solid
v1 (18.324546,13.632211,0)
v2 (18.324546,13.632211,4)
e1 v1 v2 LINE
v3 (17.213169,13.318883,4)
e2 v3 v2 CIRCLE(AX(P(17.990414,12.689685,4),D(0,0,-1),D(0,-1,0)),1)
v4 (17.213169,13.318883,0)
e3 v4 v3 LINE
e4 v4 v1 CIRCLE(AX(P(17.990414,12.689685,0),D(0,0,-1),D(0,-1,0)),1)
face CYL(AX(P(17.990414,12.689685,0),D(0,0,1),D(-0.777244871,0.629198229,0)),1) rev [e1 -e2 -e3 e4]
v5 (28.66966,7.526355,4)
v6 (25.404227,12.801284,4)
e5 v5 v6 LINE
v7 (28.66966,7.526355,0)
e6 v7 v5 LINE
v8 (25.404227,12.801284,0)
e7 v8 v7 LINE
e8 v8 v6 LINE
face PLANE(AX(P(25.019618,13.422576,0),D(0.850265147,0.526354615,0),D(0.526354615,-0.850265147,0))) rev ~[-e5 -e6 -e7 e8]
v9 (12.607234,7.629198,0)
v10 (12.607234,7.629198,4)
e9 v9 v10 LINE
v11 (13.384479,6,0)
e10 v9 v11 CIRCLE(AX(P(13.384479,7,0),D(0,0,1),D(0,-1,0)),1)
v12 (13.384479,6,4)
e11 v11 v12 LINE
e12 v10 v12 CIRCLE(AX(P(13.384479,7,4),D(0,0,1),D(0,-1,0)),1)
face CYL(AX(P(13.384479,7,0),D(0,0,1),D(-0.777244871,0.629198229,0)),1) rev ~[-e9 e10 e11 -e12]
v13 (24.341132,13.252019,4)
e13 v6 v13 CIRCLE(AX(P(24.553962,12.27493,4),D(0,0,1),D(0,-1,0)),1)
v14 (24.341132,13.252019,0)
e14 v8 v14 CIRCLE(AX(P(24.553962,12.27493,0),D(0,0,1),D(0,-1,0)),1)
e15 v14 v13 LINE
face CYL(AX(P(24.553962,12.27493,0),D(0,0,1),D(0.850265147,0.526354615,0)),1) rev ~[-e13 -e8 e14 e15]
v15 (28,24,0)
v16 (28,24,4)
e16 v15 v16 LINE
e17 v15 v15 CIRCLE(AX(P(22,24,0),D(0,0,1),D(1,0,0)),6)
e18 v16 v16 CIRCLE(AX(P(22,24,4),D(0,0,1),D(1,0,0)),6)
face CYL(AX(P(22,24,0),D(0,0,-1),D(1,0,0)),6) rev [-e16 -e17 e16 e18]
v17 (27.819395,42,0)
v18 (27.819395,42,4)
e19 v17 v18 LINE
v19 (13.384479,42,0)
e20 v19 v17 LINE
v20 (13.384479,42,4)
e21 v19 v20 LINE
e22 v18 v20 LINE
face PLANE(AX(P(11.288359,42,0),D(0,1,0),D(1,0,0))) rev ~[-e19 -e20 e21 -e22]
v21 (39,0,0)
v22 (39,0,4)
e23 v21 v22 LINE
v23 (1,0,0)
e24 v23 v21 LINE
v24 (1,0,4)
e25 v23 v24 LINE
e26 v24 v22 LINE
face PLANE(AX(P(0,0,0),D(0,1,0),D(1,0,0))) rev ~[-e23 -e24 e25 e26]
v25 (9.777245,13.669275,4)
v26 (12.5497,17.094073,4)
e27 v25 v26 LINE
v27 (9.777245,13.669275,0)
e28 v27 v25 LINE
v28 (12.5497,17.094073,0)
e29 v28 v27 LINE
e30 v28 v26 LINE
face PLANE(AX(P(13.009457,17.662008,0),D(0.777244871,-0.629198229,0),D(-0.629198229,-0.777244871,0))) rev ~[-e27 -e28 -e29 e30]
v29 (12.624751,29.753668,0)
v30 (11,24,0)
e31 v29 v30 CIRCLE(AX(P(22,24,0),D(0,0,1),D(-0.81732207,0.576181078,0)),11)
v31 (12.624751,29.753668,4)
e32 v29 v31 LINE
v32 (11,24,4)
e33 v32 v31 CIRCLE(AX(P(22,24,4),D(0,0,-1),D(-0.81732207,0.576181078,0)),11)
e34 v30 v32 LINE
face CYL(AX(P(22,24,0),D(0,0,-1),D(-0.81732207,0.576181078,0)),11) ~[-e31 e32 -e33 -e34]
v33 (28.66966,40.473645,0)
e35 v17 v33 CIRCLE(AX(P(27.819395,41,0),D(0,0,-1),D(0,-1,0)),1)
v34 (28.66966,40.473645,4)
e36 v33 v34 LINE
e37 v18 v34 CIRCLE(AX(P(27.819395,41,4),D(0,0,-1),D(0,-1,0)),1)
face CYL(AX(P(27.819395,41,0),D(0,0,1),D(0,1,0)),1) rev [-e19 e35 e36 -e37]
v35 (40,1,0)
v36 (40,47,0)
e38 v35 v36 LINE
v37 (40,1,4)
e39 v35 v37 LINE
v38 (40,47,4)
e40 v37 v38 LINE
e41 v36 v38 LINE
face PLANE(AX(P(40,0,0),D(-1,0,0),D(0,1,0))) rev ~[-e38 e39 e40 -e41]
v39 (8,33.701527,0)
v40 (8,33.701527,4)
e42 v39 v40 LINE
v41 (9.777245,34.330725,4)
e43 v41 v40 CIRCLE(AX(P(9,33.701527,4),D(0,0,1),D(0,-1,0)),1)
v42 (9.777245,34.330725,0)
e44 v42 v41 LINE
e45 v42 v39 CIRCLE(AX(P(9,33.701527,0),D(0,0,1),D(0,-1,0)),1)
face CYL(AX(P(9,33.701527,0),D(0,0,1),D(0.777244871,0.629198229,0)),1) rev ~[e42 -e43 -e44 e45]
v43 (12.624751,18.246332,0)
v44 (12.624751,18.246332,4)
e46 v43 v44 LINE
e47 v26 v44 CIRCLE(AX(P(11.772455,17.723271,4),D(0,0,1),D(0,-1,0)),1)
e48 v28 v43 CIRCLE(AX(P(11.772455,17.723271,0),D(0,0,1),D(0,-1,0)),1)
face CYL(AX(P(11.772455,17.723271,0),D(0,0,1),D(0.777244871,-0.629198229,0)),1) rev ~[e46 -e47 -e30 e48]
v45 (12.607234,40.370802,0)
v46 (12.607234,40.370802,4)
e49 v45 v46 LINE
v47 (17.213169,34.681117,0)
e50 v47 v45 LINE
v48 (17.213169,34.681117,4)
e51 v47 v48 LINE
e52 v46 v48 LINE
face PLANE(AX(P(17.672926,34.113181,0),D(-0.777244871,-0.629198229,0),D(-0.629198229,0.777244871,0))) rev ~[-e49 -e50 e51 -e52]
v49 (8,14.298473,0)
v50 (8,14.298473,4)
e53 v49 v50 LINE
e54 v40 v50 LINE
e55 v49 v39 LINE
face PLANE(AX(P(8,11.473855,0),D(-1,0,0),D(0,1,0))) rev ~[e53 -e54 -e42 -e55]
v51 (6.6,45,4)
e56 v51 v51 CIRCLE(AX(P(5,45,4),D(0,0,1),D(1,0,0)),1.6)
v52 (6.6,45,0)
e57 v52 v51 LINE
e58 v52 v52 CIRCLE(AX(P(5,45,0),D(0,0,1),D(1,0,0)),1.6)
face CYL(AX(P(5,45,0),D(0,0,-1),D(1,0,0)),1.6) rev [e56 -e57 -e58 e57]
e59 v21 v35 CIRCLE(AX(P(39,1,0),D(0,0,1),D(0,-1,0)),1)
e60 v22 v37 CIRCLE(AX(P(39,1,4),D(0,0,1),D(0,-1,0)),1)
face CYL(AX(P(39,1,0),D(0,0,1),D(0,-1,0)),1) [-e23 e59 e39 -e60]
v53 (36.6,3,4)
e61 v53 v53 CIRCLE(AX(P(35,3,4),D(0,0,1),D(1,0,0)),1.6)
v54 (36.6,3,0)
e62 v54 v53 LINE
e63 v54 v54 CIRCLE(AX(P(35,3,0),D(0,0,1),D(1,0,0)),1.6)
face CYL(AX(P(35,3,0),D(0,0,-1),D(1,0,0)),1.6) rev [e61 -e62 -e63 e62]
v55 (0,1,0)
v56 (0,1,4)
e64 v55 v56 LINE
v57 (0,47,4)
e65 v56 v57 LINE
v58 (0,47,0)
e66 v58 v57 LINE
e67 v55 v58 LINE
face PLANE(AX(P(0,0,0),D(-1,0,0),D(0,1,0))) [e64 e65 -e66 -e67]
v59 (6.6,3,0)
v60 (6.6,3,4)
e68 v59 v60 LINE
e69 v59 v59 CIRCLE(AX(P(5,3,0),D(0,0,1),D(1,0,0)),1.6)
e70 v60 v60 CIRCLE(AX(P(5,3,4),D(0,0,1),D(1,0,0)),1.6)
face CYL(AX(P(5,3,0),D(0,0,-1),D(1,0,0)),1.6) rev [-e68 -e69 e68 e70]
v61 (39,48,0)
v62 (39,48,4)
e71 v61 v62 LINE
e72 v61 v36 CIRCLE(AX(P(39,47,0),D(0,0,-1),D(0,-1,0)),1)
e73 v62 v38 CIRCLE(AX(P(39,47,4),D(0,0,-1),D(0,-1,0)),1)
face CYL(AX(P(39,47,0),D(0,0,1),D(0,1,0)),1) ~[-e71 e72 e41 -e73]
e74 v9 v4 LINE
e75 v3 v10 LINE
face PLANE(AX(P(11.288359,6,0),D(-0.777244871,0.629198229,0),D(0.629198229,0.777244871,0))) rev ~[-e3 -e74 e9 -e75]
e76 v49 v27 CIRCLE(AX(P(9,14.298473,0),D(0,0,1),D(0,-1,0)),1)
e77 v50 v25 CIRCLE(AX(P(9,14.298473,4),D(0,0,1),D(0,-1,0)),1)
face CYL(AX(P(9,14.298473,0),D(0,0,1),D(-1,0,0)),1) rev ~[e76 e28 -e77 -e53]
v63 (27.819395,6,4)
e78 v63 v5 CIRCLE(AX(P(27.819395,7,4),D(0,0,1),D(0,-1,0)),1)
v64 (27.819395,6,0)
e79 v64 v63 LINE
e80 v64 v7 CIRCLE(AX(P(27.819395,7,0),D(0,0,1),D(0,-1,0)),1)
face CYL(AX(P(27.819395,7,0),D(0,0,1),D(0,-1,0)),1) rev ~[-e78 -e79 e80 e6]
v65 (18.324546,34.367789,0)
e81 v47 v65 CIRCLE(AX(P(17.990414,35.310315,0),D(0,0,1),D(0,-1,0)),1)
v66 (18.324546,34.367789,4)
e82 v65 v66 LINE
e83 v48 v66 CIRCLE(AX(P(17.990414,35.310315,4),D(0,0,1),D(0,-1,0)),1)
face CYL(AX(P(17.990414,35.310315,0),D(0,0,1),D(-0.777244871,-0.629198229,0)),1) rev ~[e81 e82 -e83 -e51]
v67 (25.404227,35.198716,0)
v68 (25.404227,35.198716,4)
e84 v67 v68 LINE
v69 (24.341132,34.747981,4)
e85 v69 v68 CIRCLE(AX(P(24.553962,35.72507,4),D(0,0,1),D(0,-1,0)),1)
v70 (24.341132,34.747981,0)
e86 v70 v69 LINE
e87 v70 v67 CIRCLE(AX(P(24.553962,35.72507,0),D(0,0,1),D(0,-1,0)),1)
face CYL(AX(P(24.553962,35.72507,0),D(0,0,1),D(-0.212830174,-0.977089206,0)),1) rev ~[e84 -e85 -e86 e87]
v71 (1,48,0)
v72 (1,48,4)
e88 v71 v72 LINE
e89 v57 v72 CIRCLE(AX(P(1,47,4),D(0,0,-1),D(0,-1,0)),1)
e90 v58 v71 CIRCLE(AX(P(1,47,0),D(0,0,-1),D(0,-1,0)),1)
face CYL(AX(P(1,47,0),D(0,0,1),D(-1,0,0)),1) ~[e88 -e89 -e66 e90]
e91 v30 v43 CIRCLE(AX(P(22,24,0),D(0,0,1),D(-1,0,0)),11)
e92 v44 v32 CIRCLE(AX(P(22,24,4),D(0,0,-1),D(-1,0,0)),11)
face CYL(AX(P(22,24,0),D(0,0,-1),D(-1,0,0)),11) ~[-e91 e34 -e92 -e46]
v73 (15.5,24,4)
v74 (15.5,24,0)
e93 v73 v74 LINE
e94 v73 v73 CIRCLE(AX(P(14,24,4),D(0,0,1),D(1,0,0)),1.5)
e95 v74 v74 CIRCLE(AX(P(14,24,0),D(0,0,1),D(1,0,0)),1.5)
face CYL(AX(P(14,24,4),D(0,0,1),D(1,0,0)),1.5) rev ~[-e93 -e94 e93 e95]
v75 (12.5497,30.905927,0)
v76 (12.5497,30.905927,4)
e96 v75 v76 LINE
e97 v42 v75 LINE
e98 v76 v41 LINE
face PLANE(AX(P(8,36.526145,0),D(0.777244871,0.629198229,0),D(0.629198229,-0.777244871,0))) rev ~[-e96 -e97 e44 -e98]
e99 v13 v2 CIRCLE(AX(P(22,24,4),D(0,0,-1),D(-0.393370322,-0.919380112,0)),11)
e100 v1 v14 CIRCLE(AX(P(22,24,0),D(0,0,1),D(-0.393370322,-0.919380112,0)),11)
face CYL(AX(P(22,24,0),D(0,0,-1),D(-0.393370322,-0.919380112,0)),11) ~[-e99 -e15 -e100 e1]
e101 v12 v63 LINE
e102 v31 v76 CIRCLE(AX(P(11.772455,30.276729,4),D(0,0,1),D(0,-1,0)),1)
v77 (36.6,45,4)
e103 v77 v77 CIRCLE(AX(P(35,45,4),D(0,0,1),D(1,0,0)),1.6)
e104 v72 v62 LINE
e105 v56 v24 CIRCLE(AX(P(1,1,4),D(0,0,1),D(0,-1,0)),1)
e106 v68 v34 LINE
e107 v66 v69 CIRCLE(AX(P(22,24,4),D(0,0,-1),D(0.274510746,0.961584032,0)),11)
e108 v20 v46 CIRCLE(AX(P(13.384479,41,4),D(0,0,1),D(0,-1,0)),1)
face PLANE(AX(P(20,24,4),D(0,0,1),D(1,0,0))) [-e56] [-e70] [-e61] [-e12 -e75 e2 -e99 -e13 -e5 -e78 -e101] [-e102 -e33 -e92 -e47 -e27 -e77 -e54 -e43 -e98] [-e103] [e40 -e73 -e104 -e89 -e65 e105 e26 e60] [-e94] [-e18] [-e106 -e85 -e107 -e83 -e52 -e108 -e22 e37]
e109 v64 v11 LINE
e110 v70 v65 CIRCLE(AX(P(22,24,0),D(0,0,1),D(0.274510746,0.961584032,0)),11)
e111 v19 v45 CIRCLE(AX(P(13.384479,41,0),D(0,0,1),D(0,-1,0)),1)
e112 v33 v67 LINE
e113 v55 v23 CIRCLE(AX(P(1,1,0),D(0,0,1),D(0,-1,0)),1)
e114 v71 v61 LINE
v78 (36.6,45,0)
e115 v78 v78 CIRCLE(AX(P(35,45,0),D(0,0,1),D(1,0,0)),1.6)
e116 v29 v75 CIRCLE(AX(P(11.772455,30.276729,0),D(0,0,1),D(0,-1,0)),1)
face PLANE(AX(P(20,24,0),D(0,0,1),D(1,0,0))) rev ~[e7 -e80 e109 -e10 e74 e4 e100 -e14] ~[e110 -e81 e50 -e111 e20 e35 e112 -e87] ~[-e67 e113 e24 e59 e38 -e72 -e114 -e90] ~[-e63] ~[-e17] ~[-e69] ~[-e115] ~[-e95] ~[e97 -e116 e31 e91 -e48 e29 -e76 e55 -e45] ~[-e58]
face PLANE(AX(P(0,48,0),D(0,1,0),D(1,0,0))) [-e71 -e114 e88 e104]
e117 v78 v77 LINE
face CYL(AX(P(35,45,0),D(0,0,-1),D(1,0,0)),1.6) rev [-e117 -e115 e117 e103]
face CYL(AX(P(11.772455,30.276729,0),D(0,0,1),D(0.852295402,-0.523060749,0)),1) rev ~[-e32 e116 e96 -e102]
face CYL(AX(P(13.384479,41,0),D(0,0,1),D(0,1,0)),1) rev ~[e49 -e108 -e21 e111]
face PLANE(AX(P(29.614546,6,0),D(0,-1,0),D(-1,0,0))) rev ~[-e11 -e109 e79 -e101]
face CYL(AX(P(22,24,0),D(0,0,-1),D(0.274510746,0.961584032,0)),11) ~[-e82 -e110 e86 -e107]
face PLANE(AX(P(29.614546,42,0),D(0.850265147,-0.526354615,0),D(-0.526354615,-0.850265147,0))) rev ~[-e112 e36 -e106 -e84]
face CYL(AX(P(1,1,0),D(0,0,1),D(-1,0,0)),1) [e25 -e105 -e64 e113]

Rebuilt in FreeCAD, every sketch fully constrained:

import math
import FreeCAD as App
import Part
import Sketcher
from FreeCAD import Vector
Q = App.Units.Quantity


def edges_at(feature, points):
    """Names of the edges that pass closest to the given points."""
    edges = feature.Shape.Edges
    near = lambda p: min(range(len(edges)), key=lambda i: edges[i].distToShape(Part.Vertex(*p))[0])
    return sorted({f"Edge{near(p) + 1}" for p in points})

doc = App.newDocument("Part")
params = doc.addObject("Spreadsheet::Sheet", "Params")
for row, (alias, value) in enumerate([
    ("sketch1_diameter", "12 mm"),
    ("sketch1_diameter2", "3.2 mm"),
    ("sketch1_width", "40 mm"),
    ("sketch1_height", "48 mm"),
    ("pad1_length", "4 mm"),
    ("sketch2_diameter", "3 mm"),
    ("sketch3_radius", "11 mm"),
    ("pocket2_length", "10 mm"),
    ("fillet_radius", "1 mm"),
], start=1):
    params.set(f"A{row}", alias)
    params.set(f"B{row}", "=" + value)
    params.setAlias(f"B{row}", alias)

body = doc.addObject("PartDesign::Body", "Body")

# Sketch on XY plane
sketch1 = body.newObject("Sketcher::SketchObject", "Sketch")
sketch1.AttachmentSupport = (doc.getObject("XY_Plane"), [""])
sketch1.MapMode = "FlatFace"
sketch1.addGeometry(Part.LineSegment(Vector(0, 48, 0), Vector(0, 0, 0)), False)
sketch1.addGeometry(Part.LineSegment(Vector(0, 0, 0), Vector(40, 0, 0)), False)
sketch1.addGeometry(Part.LineSegment(Vector(40, 0, 0), Vector(40, 48, 0)), False)
sketch1.addGeometry(Part.LineSegment(Vector(40, 48, 0), Vector(0, 48, 0)), False)
sketch1.addGeometry(Part.Circle(Vector(5, 3, 0), Vector(0, 0, 1), 1.6), False)
sketch1.addGeometry(Part.Circle(Vector(35, 3, 0), Vector(0, 0, 1), 1.6), False)
sketch1.addGeometry(Part.Circle(Vector(5, 45, 0), Vector(0, 0, 1), 1.6), False)
sketch1.addGeometry(Part.Circle(Vector(22, 24, 0), Vector(0, 0, 1), 6), False)
sketch1.addGeometry(Part.Circle(Vector(35, 45, 0), Vector(0, 0, 1), 1.6), False)
sketch1.addConstraint(Sketcher.Constraint("Coincident", 0, 2, 1, 1))
sketch1.addConstraint(Sketcher.Constraint("Coincident", 1, 2, 2, 1))
sketch1.addConstraint(Sketcher.Constraint("Coincident", 2, 2, 3, 1))
sketch1.addConstraint(Sketcher.Constraint("Coincident", 3, 2, 0, 1))
sketch1.addConstraint(Sketcher.Constraint("Vertical", 0))
sketch1.addConstraint(Sketcher.Constraint("Horizontal", 1))
sketch1.addConstraint(Sketcher.Constraint("Vertical", 2))
sketch1.addConstraint(Sketcher.Constraint("Horizontal", 3))
sketch1.addConstraint(Sketcher.Constraint("Coincident", 0, 2, -1, 1))
sketch1.addConstraint(Sketcher.Constraint("Equal", 4, 5))
sketch1.addConstraint(Sketcher.Constraint("Equal", 5, 6))
sketch1.addConstraint(Sketcher.Constraint("Equal", 6, 8))
sketch1.addConstraint(Sketcher.Constraint("Horizontal", 4, 3, 5, 3))
sketch1.addConstraint(Sketcher.Constraint("Horizontal", 6, 3, 8, 3))
sketch1.addConstraint(Sketcher.Constraint("Vertical", 4, 3, 6, 3))
sketch1.addConstraint(Sketcher.Constraint("Vertical", 5, 3, 8, 3))
sketch1.addConstraint(Sketcher.Constraint("Diameter", 7, Q("12 mm")))
sketch1.addConstraint(Sketcher.Constraint("Diameter", 4, Q("3.2 mm")))
sketch1.addConstraint(Sketcher.Constraint("DistanceX", 1, 1, 1, 2, Q("40 mm")))
sketch1.addConstraint(Sketcher.Constraint("DistanceY", 0, 2, 0, 1, Q("48 mm")))
sketch1.addConstraint(Sketcher.Constraint("DistanceX", -1, 1, 4, 3, Q("5 mm")))
sketch1.addConstraint(Sketcher.Constraint("DistanceY", -1, 1, 4, 3, Q("3 mm")))
sketch1.addConstraint(Sketcher.Constraint("DistanceX", -1, 1, 5, 3, Q("35 mm")))
sketch1.addConstraint(Sketcher.Constraint("DistanceY", -1, 1, 6, 3, Q("45 mm")))
sketch1.addConstraint(Sketcher.Constraint("DistanceX", -1, 1, 7, 3, Q("22 mm")))
sketch1.addConstraint(Sketcher.Constraint("DistanceY", -1, 1, 7, 3, Q("24 mm")))
sketch1.setExpression("Constraints[16]", "Params.sketch1_diameter")
sketch1.setExpression("Constraints[17]", "Params.sketch1_diameter2")
sketch1.setExpression("Constraints[18]", "Params.sketch1_width")
sketch1.setExpression("Constraints[19]", "Params.sketch1_height")
pad1 = body.newObject("PartDesign::Pad", "Pad")
pad1.Profile = sketch1
pad1.setExpression("Length", "Params.pad1_length")

# Sketch on XY plane
sketch2 = body.newObject("Sketcher::SketchObject", "Sketch001")
sketch2.AttachmentSupport = (doc.getObject("XY_Plane"), [""])
sketch2.MapMode = "FlatFace"
sketch2.AttachmentOffset = App.Placement(Vector(0, 0, 4), App.Rotation())
sketch2.addGeometry(Part.Circle(Vector(14, 24, 0), Vector(0, 0, 1), 1.5), False)
sketch2.addConstraint(Sketcher.Constraint("Diameter", 0, Q("3 mm")))
sketch2.addConstraint(Sketcher.Constraint("DistanceX", -1, 1, 0, 3, Q("14 mm")))
sketch2.addConstraint(Sketcher.Constraint("DistanceY", -1, 1, 0, 3, Q("24 mm")))
sketch2.setExpression("Constraints[0]", "Params.sketch2_diameter")
pocket1 = body.newObject("PartDesign::Pocket", "Pocket")
pocket1.Profile = sketch2
pocket1.Type = "ThroughAll"

# Sketch on XY plane
sketch3 = body.newObject("Sketcher::SketchObject", "Sketch002")
sketch3.AttachmentSupport = (doc.getObject("XY_Plane"), [""])
sketch3.MapMode = "FlatFace"
sketch3.addGeometry(Part.LineSegment(Vector(29.614546, 42, 0), Vector(25.019618, 34.577424, 0)), False)
sketch3.addGeometry(Part.ArcOfCircle(Part.Circle(Vector(22, 24, 0), Vector(0, 0, 1), 11), math.radians(74.06714), math.radians(113.164374)), False)
sketch3.addGeometry(Part.LineSegment(Vector(17.672926, 34.113181, 0), Vector(11.288359, 42, 0)), False)
sketch3.addGeometry(Part.LineSegment(Vector(11.288359, 42, 0), Vector(29.614546, 42, 0)), False)
sketch3.addGeometry(Part.ArcOfCircle(Part.Circle(Vector(22, 24, 0), Vector(0, 0, 1), 11), math.radians(180), math.radians(215.182386)), False)
sketch3.addGeometry(Part.LineSegment(Vector(13.009457, 17.662008, 0), Vector(8, 11.473855, 0)), False)
sketch3.addGeometry(Part.LineSegment(Vector(8, 11.473855, 0), Vector(8, 36.526145, 0)), False)
sketch3.addGeometry(Part.LineSegment(Vector(8, 36.526145, 0), Vector(13.009457, 30.337992, 0)), False)
sketch3.addGeometry(Part.ArcOfCircle(Part.Circle(Vector(22, 24, 0), Vector(0, 0, 1), 11), math.radians(144.817614), math.radians(180)), False)
sketch3.addGeometry(Part.ArcOfCircle(Part.Circle(Vector(22, 24, 0), Vector(0, 0, 1), 11), math.radians(-113.164374), math.radians(-74.06714)), False)
sketch3.addGeometry(Part.LineSegment(Vector(25.019618, 13.422576, 0), Vector(29.614546, 6, 0)), False)
sketch3.addGeometry(Part.LineSegment(Vector(29.614546, 6, 0), Vector(11.288359, 6, 0)), False)
sketch3.addGeometry(Part.LineSegment(Vector(11.288359, 6, 0), Vector(17.672926, 13.886819, 0)), False)
sketch3.addConstraint(Sketcher.Constraint("Coincident", 0, 2, 1, 1))
sketch3.addConstraint(Sketcher.Constraint("Coincident", 1, 2, 2, 1))
sketch3.addConstraint(Sketcher.Constraint("Coincident", 2, 2, 3, 1))
sketch3.addConstraint(Sketcher.Constraint("Coincident", 3, 2, 0, 1))
sketch3.addConstraint(Sketcher.Constraint("Coincident", 4, 2, 5, 1))
sketch3.addConstraint(Sketcher.Constraint("Coincident", 5, 2, 6, 1))
sketch3.addConstraint(Sketcher.Constraint("Coincident", 6, 2, 7, 1))
sketch3.addConstraint(Sketcher.Constraint("Coincident", 7, 2, 8, 1))
sketch3.addConstraint(Sketcher.Constraint("Tangent", 8, 2, 4, 1))
sketch3.addConstraint(Sketcher.Constraint("Coincident", 9, 2, 10, 1))
sketch3.addConstraint(Sketcher.Constraint("Coincident", 10, 2, 11, 1))
sketch3.addConstraint(Sketcher.Constraint("Coincident", 11, 2, 12, 1))
sketch3.addConstraint(Sketcher.Constraint("Coincident", 12, 2, 9, 1))
sketch3.addConstraint(Sketcher.Constraint("Horizontal", 3))
sketch3.addConstraint(Sketcher.Constraint("Vertical", 6))
sketch3.addConstraint(Sketcher.Constraint("Horizontal", 11))
sketch3.addConstraint(Sketcher.Constraint("Coincident", 4, 3, 1, 3))
sketch3.addConstraint(Sketcher.Constraint("Coincident", 9, 3, 1, 3))
sketch3.addConstraint(Sketcher.Constraint("Equal", 1, 4))
sketch3.addConstraint(Sketcher.Constraint("Equal", 4, 8))
sketch3.addConstraint(Sketcher.Constraint("Equal", 8, 9))
sketch3.addConstraint(Sketcher.Constraint("Parallel", 2, 7))
sketch3.addConstraint(Sketcher.Constraint("Parallel", 5, 12))
sketch3.addConstraint(Sketcher.Constraint("Horizontal", 9, 3, 8, 2))
sketch3.addConstraint(Sketcher.Constraint("Vertical", 4, 2, 7, 2))
sketch3.addConstraint(Sketcher.Constraint("Vertical", 0, 2, 9, 2))
sketch3.addConstraint(Sketcher.Constraint("Vertical", 3, 2, 10, 2))
sketch3.addConstraint(Sketcher.Constraint("Vertical", 2, 2, 11, 2))
sketch3.addConstraint(Sketcher.Constraint("Vertical", 1, 2, 12, 2))
sketch3.addConstraint(Sketcher.Constraint("Equal", 5, 7))
sketch3.addConstraint(Sketcher.Constraint("Radius", 1, Q("11 mm")))
sketch3.addConstraint(Sketcher.Constraint("DistanceX", -1, 1, 1, 3, Q("22 mm")))
sketch3.addConstraint(Sketcher.Constraint("DistanceY", -1, 1, 1, 3, Q("24 mm")))
sketch3.addConstraint(Sketcher.Constraint("DistanceY", -1, 1, 2, 2, Q("42 mm")))
sketch3.addConstraint(Sketcher.Constraint("DistanceX", -1, 1, 5, 2, Q("8 mm")))
sketch3.addConstraint(Sketcher.Constraint("DistanceY", 6, 1, 6, 2, Q("25.05229 mm")))
sketch3.addConstraint(Sketcher.Constraint("DistanceX", 11, 2, 4, 2, Q("1.721098 mm")))
sketch3.addConstraint(Sketcher.Constraint("Distance", 0, Q("8.729719 mm")))
sketch3.addConstraint(Sketcher.Constraint("Distance", 2, Q("10.147148 mm")))
sketch3.addConstraint(Sketcher.Constraint("DistanceX", 3, 1, 3, 2, Q("18.326187 mm")))
sketch3.setExpression("Constraints[30]", "Params.sketch3_radius")
pocket2 = body.newObject("PartDesign::Pocket", "Pocket001")
pocket2.Profile = sketch3
pocket2.setExpression("Length", "Params.pocket2_length")
pocket2.Reversed = True
doc.recompute()

fillet = body.newObject("PartDesign::Fillet", "Fillet")
fillet.Base = (pocket2, edges_at(pocket2, [
    (13.009, 17.662, 2),
    (13.009, 30.338, 2),
    (8, 36.526, 2),
    (8, 11.474, 2),
    (25.02, 13.423, 2),
    (17.673, 13.887, 2),
    (11.288, 6, 2),
    (29.615, 6, 2),
    (17.673, 34.113, 2),
    (25.02, 34.577, 2),
    (29.615, 42, 2),
    (11.288, 42, 2),
    (0, 48, 2),
    (40, 48, 2),
    (40, 0, 2),
    (0, 0, 2),
]))
fillet.setExpression("Radius", "Params.fillet_radius")

doc.recompute()
